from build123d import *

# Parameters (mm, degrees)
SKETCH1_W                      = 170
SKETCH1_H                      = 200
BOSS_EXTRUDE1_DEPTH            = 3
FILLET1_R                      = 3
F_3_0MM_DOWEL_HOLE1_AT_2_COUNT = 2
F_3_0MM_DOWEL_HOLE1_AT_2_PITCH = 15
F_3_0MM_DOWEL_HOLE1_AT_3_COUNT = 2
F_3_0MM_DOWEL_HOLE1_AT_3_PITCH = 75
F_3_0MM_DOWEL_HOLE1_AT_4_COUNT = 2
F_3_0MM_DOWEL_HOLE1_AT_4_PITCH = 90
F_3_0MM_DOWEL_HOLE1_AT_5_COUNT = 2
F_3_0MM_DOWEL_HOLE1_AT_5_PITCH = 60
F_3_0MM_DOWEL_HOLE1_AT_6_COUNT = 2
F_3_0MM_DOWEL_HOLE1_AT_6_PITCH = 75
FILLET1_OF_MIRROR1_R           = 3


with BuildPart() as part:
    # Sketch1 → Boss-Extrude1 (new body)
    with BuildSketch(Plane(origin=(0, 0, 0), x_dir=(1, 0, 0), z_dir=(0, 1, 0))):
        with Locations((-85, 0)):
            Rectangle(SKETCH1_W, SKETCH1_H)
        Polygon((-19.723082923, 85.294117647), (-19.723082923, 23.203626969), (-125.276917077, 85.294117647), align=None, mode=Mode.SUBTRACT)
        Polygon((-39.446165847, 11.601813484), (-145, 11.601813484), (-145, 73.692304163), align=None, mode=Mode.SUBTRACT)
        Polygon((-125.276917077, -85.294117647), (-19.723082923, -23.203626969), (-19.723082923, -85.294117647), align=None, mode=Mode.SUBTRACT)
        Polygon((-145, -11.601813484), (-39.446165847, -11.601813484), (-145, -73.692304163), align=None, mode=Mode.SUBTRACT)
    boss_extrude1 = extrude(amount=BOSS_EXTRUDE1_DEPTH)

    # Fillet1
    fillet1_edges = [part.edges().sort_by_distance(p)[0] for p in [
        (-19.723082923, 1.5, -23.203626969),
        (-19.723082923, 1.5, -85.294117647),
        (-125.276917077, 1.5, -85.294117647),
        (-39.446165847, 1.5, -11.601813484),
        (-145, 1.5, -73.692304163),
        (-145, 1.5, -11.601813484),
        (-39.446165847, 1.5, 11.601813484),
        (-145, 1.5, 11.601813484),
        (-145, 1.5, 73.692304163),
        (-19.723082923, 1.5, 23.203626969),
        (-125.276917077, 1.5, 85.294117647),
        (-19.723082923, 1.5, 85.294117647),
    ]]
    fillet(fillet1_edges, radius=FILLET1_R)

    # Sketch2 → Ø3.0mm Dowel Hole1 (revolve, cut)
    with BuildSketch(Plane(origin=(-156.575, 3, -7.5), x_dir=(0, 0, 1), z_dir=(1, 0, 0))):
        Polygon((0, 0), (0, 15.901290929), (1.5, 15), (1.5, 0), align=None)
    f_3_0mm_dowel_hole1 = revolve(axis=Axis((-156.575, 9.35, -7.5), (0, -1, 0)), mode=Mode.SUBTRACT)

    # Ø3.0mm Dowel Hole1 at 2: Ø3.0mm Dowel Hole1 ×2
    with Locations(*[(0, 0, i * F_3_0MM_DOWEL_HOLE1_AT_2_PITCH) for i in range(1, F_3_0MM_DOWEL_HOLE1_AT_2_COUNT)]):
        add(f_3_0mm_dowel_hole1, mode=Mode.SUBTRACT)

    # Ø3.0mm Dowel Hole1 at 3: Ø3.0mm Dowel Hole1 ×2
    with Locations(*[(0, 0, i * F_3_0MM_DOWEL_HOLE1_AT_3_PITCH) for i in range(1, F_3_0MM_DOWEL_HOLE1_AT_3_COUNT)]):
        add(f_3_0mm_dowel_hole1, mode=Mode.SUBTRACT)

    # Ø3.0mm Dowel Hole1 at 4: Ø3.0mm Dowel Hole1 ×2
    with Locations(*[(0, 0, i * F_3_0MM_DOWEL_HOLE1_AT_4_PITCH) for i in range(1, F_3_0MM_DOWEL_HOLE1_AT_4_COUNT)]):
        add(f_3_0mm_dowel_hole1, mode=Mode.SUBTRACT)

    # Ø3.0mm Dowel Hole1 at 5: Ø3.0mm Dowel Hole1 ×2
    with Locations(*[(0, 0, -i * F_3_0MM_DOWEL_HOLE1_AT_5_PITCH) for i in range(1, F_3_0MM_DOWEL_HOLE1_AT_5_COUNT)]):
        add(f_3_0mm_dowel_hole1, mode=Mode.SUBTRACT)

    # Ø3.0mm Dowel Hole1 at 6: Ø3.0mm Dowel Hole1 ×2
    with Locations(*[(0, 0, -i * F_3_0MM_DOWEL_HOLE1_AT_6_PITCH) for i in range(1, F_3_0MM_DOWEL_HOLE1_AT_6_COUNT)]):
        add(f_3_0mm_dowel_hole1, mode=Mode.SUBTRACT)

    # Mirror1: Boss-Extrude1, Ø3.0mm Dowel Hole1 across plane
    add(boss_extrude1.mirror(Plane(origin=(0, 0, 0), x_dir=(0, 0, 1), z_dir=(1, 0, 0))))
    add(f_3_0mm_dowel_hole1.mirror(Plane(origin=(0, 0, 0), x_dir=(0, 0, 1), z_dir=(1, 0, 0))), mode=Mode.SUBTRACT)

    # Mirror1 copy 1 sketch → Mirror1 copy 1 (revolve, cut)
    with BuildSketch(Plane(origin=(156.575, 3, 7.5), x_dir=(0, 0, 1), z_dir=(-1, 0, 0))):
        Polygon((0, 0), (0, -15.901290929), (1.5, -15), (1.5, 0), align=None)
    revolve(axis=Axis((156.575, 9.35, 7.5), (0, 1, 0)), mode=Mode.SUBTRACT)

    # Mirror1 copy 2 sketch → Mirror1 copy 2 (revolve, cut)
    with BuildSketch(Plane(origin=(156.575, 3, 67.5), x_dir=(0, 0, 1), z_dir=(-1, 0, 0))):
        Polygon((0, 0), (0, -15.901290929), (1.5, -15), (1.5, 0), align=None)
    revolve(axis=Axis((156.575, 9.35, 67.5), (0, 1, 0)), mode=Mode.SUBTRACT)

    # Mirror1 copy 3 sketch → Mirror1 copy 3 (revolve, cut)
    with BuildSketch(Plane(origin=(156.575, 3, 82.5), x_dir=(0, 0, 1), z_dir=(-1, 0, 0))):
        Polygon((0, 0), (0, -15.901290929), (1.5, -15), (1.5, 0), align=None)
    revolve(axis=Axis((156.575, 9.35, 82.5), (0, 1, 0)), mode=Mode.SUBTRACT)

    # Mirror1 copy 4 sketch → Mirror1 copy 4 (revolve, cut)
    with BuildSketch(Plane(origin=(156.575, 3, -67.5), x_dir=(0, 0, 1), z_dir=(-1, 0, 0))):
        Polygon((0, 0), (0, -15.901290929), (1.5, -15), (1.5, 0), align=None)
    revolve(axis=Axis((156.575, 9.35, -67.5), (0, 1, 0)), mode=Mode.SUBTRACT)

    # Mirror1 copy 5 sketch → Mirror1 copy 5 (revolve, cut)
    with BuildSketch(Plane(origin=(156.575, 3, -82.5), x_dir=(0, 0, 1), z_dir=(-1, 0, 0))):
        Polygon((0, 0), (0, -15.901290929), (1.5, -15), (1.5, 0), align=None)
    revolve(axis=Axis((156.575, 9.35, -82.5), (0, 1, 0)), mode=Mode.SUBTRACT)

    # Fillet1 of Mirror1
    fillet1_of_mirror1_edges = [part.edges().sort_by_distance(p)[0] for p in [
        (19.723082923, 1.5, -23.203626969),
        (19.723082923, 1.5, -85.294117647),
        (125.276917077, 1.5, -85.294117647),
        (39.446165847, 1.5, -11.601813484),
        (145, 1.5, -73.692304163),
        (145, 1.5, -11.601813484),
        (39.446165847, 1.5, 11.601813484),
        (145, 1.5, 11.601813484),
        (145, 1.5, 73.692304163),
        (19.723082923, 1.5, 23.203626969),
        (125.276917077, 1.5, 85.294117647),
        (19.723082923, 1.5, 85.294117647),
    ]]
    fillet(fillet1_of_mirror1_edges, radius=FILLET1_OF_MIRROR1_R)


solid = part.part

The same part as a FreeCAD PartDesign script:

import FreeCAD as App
import Part
import Sketcher
from FreeCAD import Vector
Q = App.Units.Quantity


def edges_at(feature, points):
    """Names of the edges that pass closest to the given points."""
    edges = feature.Shape.Edges
    near = lambda p: min(range(len(edges)), key=lambda i: edges[i].distToShape(Part.Vertex(*p))[0])
    return sorted({f"Edge{near(p) + 1}" for p in points})


def add_polygon(sketch, points):
    """Adds a closed chain of lines whose ends are joined by coincident constraints."""
    first, n = sketch.GeometryCount, len(points)
    for a, b in zip(points, points[1:] + points[:1]):
        sketch.addGeometry(Part.LineSegment(App.Vector(*a, 0), App.Vector(*b, 0)), False)
    for i in range(n):
        sketch.addConstraint(Sketcher.Constraint("Coincident", first + i, 2, first + (i + 1) % n, 1))

doc = App.newDocument("Part")
params = doc.addObject("Spreadsheet::Sheet", "Params")
for row, (alias, value) in enumerate([
    ("sketch1_width", "170 mm"),
    ("sketch1_height", "200 mm"),
    ("pad1_length", "3 mm"),
    ("fillet_radius", "3 mm"),
    ("sketch2_width", "15 mm"),
    ("sketch2_height", "1.5 mm"),
    ("groove_angle", "360 deg"),
    ("linearpattern_pitch", "15 mm"),
    ("linearpattern2_pitch", "75 mm"),
    ("linearpattern3_pitch", "90 mm"),
    ("linearpattern4_pitch", "60 mm"),
    ("linearpattern5_pitch", "75 mm"),
    ("sketch3_width", "15 mm"),
    ("sketch3_height", "1.5 mm"),
    ("groove2_angle", "360 deg"),
    ("sketch4_width", "15 mm"),
    ("sketch4_height", "1.5 mm"),
    ("groove3_angle", "360 deg"),
    ("sketch5_width", "15 mm"),
    ("sketch5_height", "1.5 mm"),
    ("groove4_angle", "360 deg"),
    ("sketch6_width", "15 mm"),
    ("sketch6_height", "1.5 mm"),
    ("groove5_angle", "360 deg"),
    ("sketch7_width", "15 mm"),
    ("sketch7_height", "1.5 mm"),
    ("groove6_angle", "360 deg"),
    ("fillet2_radius", "3 mm"),
], start=1):
    params.set(f"A{row}", alias)
    params.set(f"B{row}", "=" + value)
    params.setAlias(f"B{row}", alias)

body = doc.addObject("PartDesign::Body", "Body")

sketch1 = doc.addObject("Sketcher::SketchObject", "Sketch")
body.addObject(sketch1)
sketch1.AttachmentSupport = (doc.XZ_Plane, [""])
sketch1.MapMode = "FlatFace"
add_polygon(sketch1, [(-170, -100), (-170, 100), (0, 100), (0, -100)])
add_polygon(sketch1, [(-145, 74), (-145, 12), (-39, 12)])
add_polygon(sketch1, [(-20, 85), (-125, 85), (-20, 23)])
add_polygon(sketch1, [(-145, -74), (-39, -12), (-145, -12)])
add_polygon(sketch1, [(-125, -85), (-20, -85), (-20, -23)])
sketch1.addConstraint(Sketcher.Constraint("Vertical", 0))
sketch1.addConstraint(Sketcher.Constraint("Horizontal", 1))
sketch1.addConstraint(Sketcher.Constraint("Vertical", 2))
sketch1.addConstraint(Sketcher.Constraint("Horizontal", 3))
sketch1.addConstraint(Sketcher.Constraint("Vertical", 4))
sketch1.addConstraint(Sketcher.Constraint("Horizontal", 5))
sketch1.addConstraint(Sketcher.Constraint("Horizontal", 7))
sketch1.addConstraint(Sketcher.Constraint("Vertical", 9))
sketch1.addConstraint(Sketcher.Constraint("Horizontal", 11))
sketch1.addConstraint(Sketcher.Constraint("Vertical", 12))
sketch1.addConstraint(Sketcher.Constraint("Horizontal", 13))
sketch1.addConstraint(Sketcher.Constraint("Vertical", 14))
sketch1.addConstraint(Sketcher.Constraint("Symmetric", 1, 2, 2, 2, -1, 1))
sketch1.addConstraint(Sketcher.Constraint("Symmetric", 5, 2, 10, 2, -1))
sketch1.addConstraint(Sketcher.Constraint("Symmetric", 6, 2, 12, 2, -1))
sketch1.addConstraint(Sketcher.Constraint("Symmetric", 9, 2, 13, 2, -1))
sketch1.addConstraint(Sketcher.Constraint("Parallel", 6, 8))
sketch1.addConstraint(Sketcher.Constraint("Parallel", 10, 15))
sketch1.addConstraint(Sketcher.Constraint("Vertical", 7, 2, 15, 2))
sketch1.addConstraint(Sketcher.Constraint("Equal", 5, 7))
sketch1.addConstraint(Sketcher.Constraint("DistanceX", 1, 1, 1, 2, 170.0))
sketch1.addConstraint(Sketcher.Constraint("DistanceY", 0, 1, 0, 2, 200.0))
sketch1.addConstraint(Sketcher.Constraint("DistanceX", 4, 2, -1, 1, 145.0))
sketch1.addConstraint(Sketcher.Constraint("DistanceY", 4, 2, 4, 1, 62.090491))
sketch1.addConstraint(Sketcher.Constraint("Distance", 6, 122.46159))
sketch1.addConstraint(Sketcher.Constraint("DistanceX", 7, 2, 5, 2, 85.830751))
sketch1.addConstraint(Sketcher.Constraint("DistanceY", 10, 2, 8, 2, 34.80544))
sketch1.addConstraint(Sketcher.Constraint("DistanceY", -1, 1, 4, 2, 11.601813))
sketch1.setExpression("Constraints[36]", "Params.sketch1_width")
sketch1.setExpression("Constraints[37]", "Params.sketch1_height")
pad1 = doc.addObject("PartDesign::Pad", "Pad")
body.addObject(pad1)
pad1.Profile = sketch1
pad1.setExpression("Length", "Params.pad1_length")
pad1.Reversed = True
doc.recompute()

fillet = doc.addObject("PartDesign::Fillet", "Fillet")
body.addObject(fillet)
fillet.Base = (pad1, edges_at(pad1, [
    (-19.723, 1.5, -23.204),
    (-19.723, 1.5, -85.294),
    (-125.277, 1.5, -85.294),
    (-39.446, 1.5, -11.602),
    (-145, 1.5, -73.692),
    (-145, 1.5, -11.602),
    (-39.446, 1.5, 11.602),
    (-145, 1.5, 11.602),
    (-145, 1.5, 73.692),
    (-19.723, 1.5, 23.204),
    (-125.277, 1.5, 85.294),
    (-19.723, 1.5, 85.294),
]))
fillet.setExpression("Radius", "Params.fillet_radius")

sketch2 = doc.addObject("Sketcher::SketchObject", "Sketch001")
body.addObject(sketch2)
sketch2.AttachmentSupport = (doc.YZ_Plane, [""])
sketch2.MapMode = "FlatFace"
sketch2.AttachmentOffset = App.Placement(Vector(0, 0, -156.575), App.Rotation())
add_polygon(sketch2, [(-12.9, -7.5), (3, -7.5), (3, -6), (-12, -6)])
sketch2.addGeometry(Part.LineSegment(Vector(3, -7.5, 0), Vector(-12.9, -7.5, 0)), True)
sketch2.addConstraint(Sketcher.Constraint("Horizontal", 0))
sketch2.addConstraint(Sketcher.Constraint("Vertical", 1))
sketch2.addConstraint(Sketcher.Constraint("Horizontal", 2))
sketch2.addConstraint(Sketcher.Constraint("Horizontal", 4))
sketch2.addConstraint(Sketcher.Constraint("Coincident", 4, 1, 0, 2))
sketch2.addConstraint(Sketcher.Constraint("Equal", 0, 4))
sketch2.addConstraint(Sketcher.Constraint("DistanceX", 2, 2, 2, 1, 15.0))
sketch2.addConstraint(Sketcher.Constraint("Angle", 3, Q("-121 deg")))
sketch2.addConstraint(Sketcher.Constraint("DistanceY", 1, 1, 1, 2, 1.5))
sketch2.addConstraint(Sketcher.Constraint("DistanceX", -1, 1, 0, 2, 3.0))
sketch2.addConstraint(Sketcher.Constraint("DistanceY", 1, 2, -1, 1, 6.0))
sketch2.setExpression("Constraints[10]", "Params.sketch2_width")
sketch2.setExpression("Constraints[12]", "Params.sketch2_height")
groove = doc.addObject("PartDesign::Groove", "Groove")
body.addObject(groove)
groove.Profile = sketch2
groove.ReferenceAxis = (sketch2, ["Axis0"])
groove.setExpression("Angle", "Params.groove_angle")
doc.recompute()

linearpattern = doc.addObject("PartDesign::LinearPattern", "LinearPattern")
body.addObject(linearpattern)
linearpattern.Originals = [groove]
linearpattern.Direction = (doc.Z_Axis, [""])
linearpattern.Mode = "offset"
linearpattern.setExpression("Offset", "Params.linearpattern_pitch")
linearpattern.Occurrences = 2
body.Tip = linearpattern
doc.recompute()

linearpattern2 = doc.addObject("PartDesign::LinearPattern", "LinearPattern001")
body.addObject(linearpattern2)
linearpattern2.Originals = [groove]
linearpattern2.Direction = (doc.Z_Axis, [""])
linearpattern2.Mode = "offset"
linearpattern2.setExpression("Offset", "Params.linearpattern2_pitch")
linearpattern2.Occurrences = 2
body.Tip = linearpattern2
doc.recompute()

linearpattern3 = doc.addObject("PartDesign::LinearPattern", "LinearPattern002")
body.addObject(linearpattern3)
linearpattern3.Originals = [groove]
linearpattern3.Direction = (doc.Z_Axis, [""])
linearpattern3.Mode = "offset"
linearpattern3.setExpression("Offset", "Params.linearpattern3_pitch")
linearpattern3.Occurrences = 2
body.Tip = linearpattern3
doc.recompute()

linearpattern4 = doc.addObject("PartDesign::LinearPattern", "LinearPattern003")
body.addObject(linearpattern4)
linearpattern4.Originals = [groove]
linearpattern4.Direction = (doc.Z_Axis, [""])
linearpattern4.Mode = "offset"
linearpattern4.setExpression("Offset", "Params.linearpattern4_pitch")
linearpattern4.Occurrences = 2
linearpattern4.Reversed = True
body.Tip = linearpattern4
doc.recompute()

linearpattern5 = doc.addObject("PartDesign::LinearPattern", "LinearPattern004")
body.addObject(linearpattern5)
linearpattern5.Originals = [groove]
linearpattern5.Direction = (doc.Z_Axis, [""])
linearpattern5.Mode = "offset"
linearpattern5.setExpression("Offset", "Params.linearpattern5_pitch")
linearpattern5.Occurrences = 2
linearpattern5.Reversed = True
body.Tip = linearpattern5
doc.recompute()

mirrored = doc.addObject("PartDesign::Mirrored", "Mirrored")
body.addObject(mirrored)
mirrored.Originals = [pad1, groove]
mirrored.MirrorPlane = (doc.YZ_Plane, [""])
body.Tip = mirrored

sketch3 = doc.addObject("Sketcher::SketchObject", "Sketch002")
body.addObject(sketch3)
sketch3.AttachmentSupport = (doc.YZ_Plane, [""])
sketch3.MapMode = "FlatFace"
sketch3.AttachmentOffset = App.Placement(Vector(0, 0, 156.575), App.Rotation())
add_polygon(sketch3, [(3, 7.5), (-12.9, 7.5), (-12, 9), (3, 9)])
sketch3.addGeometry(Part.LineSegment(Vector(-12.9, 7.5, 0), Vector(3, 7.5, 0)), True)
sketch3.addConstraint(Sketcher.Constraint("Horizontal", 0))
sketch3.addConstraint(Sketcher.Constraint("Horizontal", 2))
sketch3.addConstraint(Sketcher.Constraint("Vertical", 3))
sketch3.addConstraint(Sketcher.Constraint("Horizontal", 4))
sketch3.addConstraint(Sketcher.Constraint("Coincident", 4, 1, 0, 2))
sketch3.addConstraint(Sketcher.Constraint("Vertical", 2, 2, 4, 2))
sketch3.addConstraint(Sketcher.Constraint("DistanceX", 2, 1, 2, 2, 15.0))
sketch3.addConstraint(Sketcher.Constraint("Angle", 1, Q("59 deg")))
sketch3.addConstraint(Sketcher.Constraint("DistanceY", 3, 2, 3, 1, 1.5))
sketch3.addConstraint(Sketcher.Constraint("DistanceX", 1, 2, -1, 1, 12.0))
sketch3.addConstraint(Sketcher.Constraint("DistanceY", -1, 1, 1, 2, 9.0))
sketch3.setExpression("Constraints[10]", "Params.sketch3_width")
sketch3.setExpression("Constraints[12]", "Params.sketch3_height")
groove2 = doc.addObject("PartDesign::Groove", "Groove001")
body.addObject(groove2)
groove2.Profile = sketch3
groove2.ReferenceAxis = (sketch3, ["Axis0"])
groove2.setExpression("Angle", "Params.groove2_angle")

sketch4 = doc.addObject("Sketcher::SketchObject", "Sketch003")
body.addObject(sketch4)
sketch4.AttachmentSupport = (doc.YZ_Plane, [""])
sketch4.MapMode = "FlatFace"
sketch4.AttachmentOffset = App.Placement(Vector(0, 0, 156.575), App.Rotation())
add_polygon(sketch4, [(3, 67.5), (-12.9, 67.5), (-12, 69), (3, 69)])
sketch4.addGeometry(Part.LineSegment(Vector(-12.9, 67.5, 0), Vector(3, 67.5, 0)), True)
sketch4.addConstraint(Sketcher.Constraint("Horizontal", 0))
sketch4.addConstraint(Sketcher.Constraint("Horizontal", 2))
sketch4.addConstraint(Sketcher.Constraint("Vertical", 3))
sketch4.addConstraint(Sketcher.Constraint("Horizontal", 4))
sketch4.addConstraint(Sketcher.Constraint("Coincident", 4, 1, 0, 2))
sketch4.addConstraint(Sketcher.Constraint("Vertical", 2, 2, 4, 2))
sketch4.addConstraint(Sketcher.Constraint("DistanceX", 2, 1, 2, 2, 15.0))
sketch4.addConstraint(Sketcher.Constraint("Angle", 1, Q("59 deg")))
sketch4.addConstraint(Sketcher.Constraint("DistanceY", 3, 2, 3, 1, 1.5))
sketch4.addConstraint(Sketcher.Constraint("DistanceX", 1, 2, -1, 1, 12.0))
sketch4.addConstraint(Sketcher.Constraint("DistanceY", -1, 1, 1, 2, 69.0))
sketch4.setExpression("Constraints[10]", "Params.sketch4_width")
sketch4.setExpression("Constraints[12]", "Params.sketch4_height")
groove3 = doc.addObject("PartDesign::Groove", "Groove002")
body.addObject(groove3)
groove3.Profile = sketch4
groove3.ReferenceAxis = (sketch4, ["Axis0"])
groove3.setExpression("Angle", "Params.groove3_angle")

sketch5 = doc.addObject("Sketcher::SketchObject", "Sketch004")
body.addObject(sketch5)
sketch5.AttachmentSupport = (doc.YZ_Plane, [""])
sketch5.MapMode = "FlatFace"
sketch5.AttachmentOffset = App.Placement(Vector(0, 0, 156.575), App.Rotation())
add_polygon(sketch5, [(3, 82.5), (-12.9, 82.5), (-12, 84), (3, 84)])
sketch5.addGeometry(Part.LineSegment(Vector(-12.9, 82.5, 0), Vector(3, 82.5, 0)), True)
sketch5.addConstraint(Sketcher.Constraint("Horizontal", 0))
sketch5.addConstraint(Sketcher.Constraint("Horizontal", 2))
sketch5.addConstraint(Sketcher.Constraint("Vertical", 3))
sketch5.addConstraint(Sketcher.Constraint("Horizontal", 4))
sketch5.addConstraint(Sketcher.Constraint("Coincident", 4, 1, 0, 2))
sketch5.addConstraint(Sketcher.Constraint("Vertical", 2, 2, 4, 2))
sketch5.addConstraint(Sketcher.Constraint("DistanceX", 2, 1, 2, 2, 15.0))
sketch5.addConstraint(Sketcher.Constraint("Angle", 1, Q("59 deg")))
sketch5.addConstraint(Sketcher.Constraint("DistanceY", 3, 2, 3, 1, 1.5))
sketch5.addConstraint(Sketcher.Constraint("DistanceX", 1, 2, -1, 1, 12.0))
sketch5.addConstraint(Sketcher.Constraint("DistanceY", -1, 1, 1, 2, 84.0))
sketch5.setExpression("Constraints[10]", "Params.sketch5_width")
sketch5.setExpression("Constraints[12]", "Params.sketch5_height")
groove4 = doc.addObject("PartDesign::Groove", "Groove003")
body.addObject(groove4)
groove4.Profile = sketch5
groove4.ReferenceAxis = (sketch5, ["Axis0"])
groove4.setExpression("Angle", "Params.groove4_angle")

sketch6 = doc.addObject("Sketcher::SketchObject", "Sketch005")
body.addObject(sketch6)
sketch6.AttachmentSupport = (doc.YZ_Plane, [""])
sketch6.MapMode = "FlatFace"
sketch6.AttachmentOffset = App.Placement(Vector(0, 0, 156.575), App.Rotation())
add_polygon(sketch6, [(3, -67.5), (-12.9, -67.5), (-12, -66), (3, -66)])
sketch6.addGeometry(Part.LineSegment(Vector(-12.9, -67.5, 0), Vector(3, -67.5, 0)), True)
sketch6.addConstraint(Sketcher.Constraint("Horizontal", 0))
sketch6.addConstraint(Sketcher.Constraint("Horizontal", 2))
sketch6.addConstraint(Sketcher.Constraint("Vertical", 3))
sketch6.addConstraint(Sketcher.Constraint("Horizontal", 4))
sketch6.addConstraint(Sketcher.Constraint("Coincident", 4, 1, 0, 2))
sketch6.addConstraint(Sketcher.Constraint("Vertical", 2, 2, 4, 2))
sketch6.addConstraint(Sketcher.Constraint("DistanceX", 2, 1, 2, 2, 15.0))
sketch6.addConstraint(Sketcher.Constraint("Angle", 1, Q("59 deg")))
sketch6.addConstraint(Sketcher.Constraint("DistanceY", 3, 2, 3, 1, 1.5))
sketch6.addConstraint(Sketcher.Constraint("DistanceX", 1, 2, -1, 1, 12.0))
sketch6.addConstraint(Sketcher.Constraint("DistanceY", 1, 2, -1, 1, 66.0))
sketch6.setExpression("Constraints[10]", "Params.sketch6_width")
sketch6.setExpression("Constraints[12]", "Params.sketch6_height")
groove5 = doc.addObject("PartDesign::Groove", "Groove004")
body.addObject(groove5)
groove5.Profile = sketch6
groove5.ReferenceAxis = (sketch6, ["Axis0"])
groove5.setExpression("Angle", "Params.groove5_angle")

sketch7 = doc.addObject("Sketcher::SketchObject", "Sketch006")
body.addObject(sketch7)
sketch7.AttachmentSupport = (doc.YZ_Plane, [""])
sketch7.MapMode = "FlatFace"
sketch7.AttachmentOffset = App.Placement(Vector(0, 0, 156.575), App.Rotation())
add_polygon(sketch7, [(3, -82.5), (-12.9, -82.5), (-12, -81), (3, -81)])
sketch7.addGeometry(Part.LineSegment(Vector(-12.9, -82.5, 0), Vector(3, -82.5, 0)), True)
sketch7.addConstraint(Sketcher.Constraint("Horizontal", 0))
sketch7.addConstraint(Sketcher.Constraint("Horizontal", 2))
sketch7.addConstraint(Sketcher.Constraint("Vertical", 3))
sketch7.addConstraint(Sketcher.Constraint("Horizontal", 4))
sketch7.addConstraint(Sketcher.Constraint("Coincident", 4, 1, 0, 2))
sketch7.addConstraint(Sketcher.Constraint("Vertical", 2, 2, 4, 2))
sketch7.addConstraint(Sketcher.Constraint("DistanceX", 2, 1, 2, 2, 15.0))
sketch7.addConstraint(Sketcher.Constraint("Angle", 1, Q("59 deg")))
sketch7.addConstraint(Sketcher.Constraint("DistanceY", 3, 2, 3, 1, 1.5))
sketch7.addConstraint(Sketcher.Constraint("DistanceX", 1, 2, -1, 1, 12.0))
sketch7.addConstraint(Sketcher.Constraint("DistanceY", 1, 2, -1, 1, 81.0))
sketch7.setExpression("Constraints[10]", "Params.sketch7_width")
sketch7.setExpression("Constraints[12]", "Params.sketch7_height")
groove6 = doc.addObject("PartDesign::Groove", "Groove005")
body.addObject(groove6)
groove6.Profile = sketch7
groove6.ReferenceAxis = (sketch7, ["Axis0"])
groove6.setExpression("Angle", "Params.groove6_angle")
doc.recompute()

fillet2 = doc.addObject("PartDesign::Fillet", "Fillet001")
body.addObject(fillet2)
fillet2.Base = (groove6, edges_at(groove6, [
    (19.723, 1.5, -23.204),
    (19.723, 1.5, -85.294),
    (125.277, 1.5, -85.294),
    (39.446, 1.5, -11.602),
    (145, 1.5, -73.692),
    (145, 1.5, -11.602),
    (39.446, 1.5, 11.602),
    (145, 1.5, 11.602),
    (145, 1.5, 73.692),
    (19.723, 1.5, 23.204),
    (125.277, 1.5, 85.294),
    (19.723, 1.5, 85.294),
]))
fillet2.setExpression("Radius", "Params.fillet2_radius")

doc.recompute()
